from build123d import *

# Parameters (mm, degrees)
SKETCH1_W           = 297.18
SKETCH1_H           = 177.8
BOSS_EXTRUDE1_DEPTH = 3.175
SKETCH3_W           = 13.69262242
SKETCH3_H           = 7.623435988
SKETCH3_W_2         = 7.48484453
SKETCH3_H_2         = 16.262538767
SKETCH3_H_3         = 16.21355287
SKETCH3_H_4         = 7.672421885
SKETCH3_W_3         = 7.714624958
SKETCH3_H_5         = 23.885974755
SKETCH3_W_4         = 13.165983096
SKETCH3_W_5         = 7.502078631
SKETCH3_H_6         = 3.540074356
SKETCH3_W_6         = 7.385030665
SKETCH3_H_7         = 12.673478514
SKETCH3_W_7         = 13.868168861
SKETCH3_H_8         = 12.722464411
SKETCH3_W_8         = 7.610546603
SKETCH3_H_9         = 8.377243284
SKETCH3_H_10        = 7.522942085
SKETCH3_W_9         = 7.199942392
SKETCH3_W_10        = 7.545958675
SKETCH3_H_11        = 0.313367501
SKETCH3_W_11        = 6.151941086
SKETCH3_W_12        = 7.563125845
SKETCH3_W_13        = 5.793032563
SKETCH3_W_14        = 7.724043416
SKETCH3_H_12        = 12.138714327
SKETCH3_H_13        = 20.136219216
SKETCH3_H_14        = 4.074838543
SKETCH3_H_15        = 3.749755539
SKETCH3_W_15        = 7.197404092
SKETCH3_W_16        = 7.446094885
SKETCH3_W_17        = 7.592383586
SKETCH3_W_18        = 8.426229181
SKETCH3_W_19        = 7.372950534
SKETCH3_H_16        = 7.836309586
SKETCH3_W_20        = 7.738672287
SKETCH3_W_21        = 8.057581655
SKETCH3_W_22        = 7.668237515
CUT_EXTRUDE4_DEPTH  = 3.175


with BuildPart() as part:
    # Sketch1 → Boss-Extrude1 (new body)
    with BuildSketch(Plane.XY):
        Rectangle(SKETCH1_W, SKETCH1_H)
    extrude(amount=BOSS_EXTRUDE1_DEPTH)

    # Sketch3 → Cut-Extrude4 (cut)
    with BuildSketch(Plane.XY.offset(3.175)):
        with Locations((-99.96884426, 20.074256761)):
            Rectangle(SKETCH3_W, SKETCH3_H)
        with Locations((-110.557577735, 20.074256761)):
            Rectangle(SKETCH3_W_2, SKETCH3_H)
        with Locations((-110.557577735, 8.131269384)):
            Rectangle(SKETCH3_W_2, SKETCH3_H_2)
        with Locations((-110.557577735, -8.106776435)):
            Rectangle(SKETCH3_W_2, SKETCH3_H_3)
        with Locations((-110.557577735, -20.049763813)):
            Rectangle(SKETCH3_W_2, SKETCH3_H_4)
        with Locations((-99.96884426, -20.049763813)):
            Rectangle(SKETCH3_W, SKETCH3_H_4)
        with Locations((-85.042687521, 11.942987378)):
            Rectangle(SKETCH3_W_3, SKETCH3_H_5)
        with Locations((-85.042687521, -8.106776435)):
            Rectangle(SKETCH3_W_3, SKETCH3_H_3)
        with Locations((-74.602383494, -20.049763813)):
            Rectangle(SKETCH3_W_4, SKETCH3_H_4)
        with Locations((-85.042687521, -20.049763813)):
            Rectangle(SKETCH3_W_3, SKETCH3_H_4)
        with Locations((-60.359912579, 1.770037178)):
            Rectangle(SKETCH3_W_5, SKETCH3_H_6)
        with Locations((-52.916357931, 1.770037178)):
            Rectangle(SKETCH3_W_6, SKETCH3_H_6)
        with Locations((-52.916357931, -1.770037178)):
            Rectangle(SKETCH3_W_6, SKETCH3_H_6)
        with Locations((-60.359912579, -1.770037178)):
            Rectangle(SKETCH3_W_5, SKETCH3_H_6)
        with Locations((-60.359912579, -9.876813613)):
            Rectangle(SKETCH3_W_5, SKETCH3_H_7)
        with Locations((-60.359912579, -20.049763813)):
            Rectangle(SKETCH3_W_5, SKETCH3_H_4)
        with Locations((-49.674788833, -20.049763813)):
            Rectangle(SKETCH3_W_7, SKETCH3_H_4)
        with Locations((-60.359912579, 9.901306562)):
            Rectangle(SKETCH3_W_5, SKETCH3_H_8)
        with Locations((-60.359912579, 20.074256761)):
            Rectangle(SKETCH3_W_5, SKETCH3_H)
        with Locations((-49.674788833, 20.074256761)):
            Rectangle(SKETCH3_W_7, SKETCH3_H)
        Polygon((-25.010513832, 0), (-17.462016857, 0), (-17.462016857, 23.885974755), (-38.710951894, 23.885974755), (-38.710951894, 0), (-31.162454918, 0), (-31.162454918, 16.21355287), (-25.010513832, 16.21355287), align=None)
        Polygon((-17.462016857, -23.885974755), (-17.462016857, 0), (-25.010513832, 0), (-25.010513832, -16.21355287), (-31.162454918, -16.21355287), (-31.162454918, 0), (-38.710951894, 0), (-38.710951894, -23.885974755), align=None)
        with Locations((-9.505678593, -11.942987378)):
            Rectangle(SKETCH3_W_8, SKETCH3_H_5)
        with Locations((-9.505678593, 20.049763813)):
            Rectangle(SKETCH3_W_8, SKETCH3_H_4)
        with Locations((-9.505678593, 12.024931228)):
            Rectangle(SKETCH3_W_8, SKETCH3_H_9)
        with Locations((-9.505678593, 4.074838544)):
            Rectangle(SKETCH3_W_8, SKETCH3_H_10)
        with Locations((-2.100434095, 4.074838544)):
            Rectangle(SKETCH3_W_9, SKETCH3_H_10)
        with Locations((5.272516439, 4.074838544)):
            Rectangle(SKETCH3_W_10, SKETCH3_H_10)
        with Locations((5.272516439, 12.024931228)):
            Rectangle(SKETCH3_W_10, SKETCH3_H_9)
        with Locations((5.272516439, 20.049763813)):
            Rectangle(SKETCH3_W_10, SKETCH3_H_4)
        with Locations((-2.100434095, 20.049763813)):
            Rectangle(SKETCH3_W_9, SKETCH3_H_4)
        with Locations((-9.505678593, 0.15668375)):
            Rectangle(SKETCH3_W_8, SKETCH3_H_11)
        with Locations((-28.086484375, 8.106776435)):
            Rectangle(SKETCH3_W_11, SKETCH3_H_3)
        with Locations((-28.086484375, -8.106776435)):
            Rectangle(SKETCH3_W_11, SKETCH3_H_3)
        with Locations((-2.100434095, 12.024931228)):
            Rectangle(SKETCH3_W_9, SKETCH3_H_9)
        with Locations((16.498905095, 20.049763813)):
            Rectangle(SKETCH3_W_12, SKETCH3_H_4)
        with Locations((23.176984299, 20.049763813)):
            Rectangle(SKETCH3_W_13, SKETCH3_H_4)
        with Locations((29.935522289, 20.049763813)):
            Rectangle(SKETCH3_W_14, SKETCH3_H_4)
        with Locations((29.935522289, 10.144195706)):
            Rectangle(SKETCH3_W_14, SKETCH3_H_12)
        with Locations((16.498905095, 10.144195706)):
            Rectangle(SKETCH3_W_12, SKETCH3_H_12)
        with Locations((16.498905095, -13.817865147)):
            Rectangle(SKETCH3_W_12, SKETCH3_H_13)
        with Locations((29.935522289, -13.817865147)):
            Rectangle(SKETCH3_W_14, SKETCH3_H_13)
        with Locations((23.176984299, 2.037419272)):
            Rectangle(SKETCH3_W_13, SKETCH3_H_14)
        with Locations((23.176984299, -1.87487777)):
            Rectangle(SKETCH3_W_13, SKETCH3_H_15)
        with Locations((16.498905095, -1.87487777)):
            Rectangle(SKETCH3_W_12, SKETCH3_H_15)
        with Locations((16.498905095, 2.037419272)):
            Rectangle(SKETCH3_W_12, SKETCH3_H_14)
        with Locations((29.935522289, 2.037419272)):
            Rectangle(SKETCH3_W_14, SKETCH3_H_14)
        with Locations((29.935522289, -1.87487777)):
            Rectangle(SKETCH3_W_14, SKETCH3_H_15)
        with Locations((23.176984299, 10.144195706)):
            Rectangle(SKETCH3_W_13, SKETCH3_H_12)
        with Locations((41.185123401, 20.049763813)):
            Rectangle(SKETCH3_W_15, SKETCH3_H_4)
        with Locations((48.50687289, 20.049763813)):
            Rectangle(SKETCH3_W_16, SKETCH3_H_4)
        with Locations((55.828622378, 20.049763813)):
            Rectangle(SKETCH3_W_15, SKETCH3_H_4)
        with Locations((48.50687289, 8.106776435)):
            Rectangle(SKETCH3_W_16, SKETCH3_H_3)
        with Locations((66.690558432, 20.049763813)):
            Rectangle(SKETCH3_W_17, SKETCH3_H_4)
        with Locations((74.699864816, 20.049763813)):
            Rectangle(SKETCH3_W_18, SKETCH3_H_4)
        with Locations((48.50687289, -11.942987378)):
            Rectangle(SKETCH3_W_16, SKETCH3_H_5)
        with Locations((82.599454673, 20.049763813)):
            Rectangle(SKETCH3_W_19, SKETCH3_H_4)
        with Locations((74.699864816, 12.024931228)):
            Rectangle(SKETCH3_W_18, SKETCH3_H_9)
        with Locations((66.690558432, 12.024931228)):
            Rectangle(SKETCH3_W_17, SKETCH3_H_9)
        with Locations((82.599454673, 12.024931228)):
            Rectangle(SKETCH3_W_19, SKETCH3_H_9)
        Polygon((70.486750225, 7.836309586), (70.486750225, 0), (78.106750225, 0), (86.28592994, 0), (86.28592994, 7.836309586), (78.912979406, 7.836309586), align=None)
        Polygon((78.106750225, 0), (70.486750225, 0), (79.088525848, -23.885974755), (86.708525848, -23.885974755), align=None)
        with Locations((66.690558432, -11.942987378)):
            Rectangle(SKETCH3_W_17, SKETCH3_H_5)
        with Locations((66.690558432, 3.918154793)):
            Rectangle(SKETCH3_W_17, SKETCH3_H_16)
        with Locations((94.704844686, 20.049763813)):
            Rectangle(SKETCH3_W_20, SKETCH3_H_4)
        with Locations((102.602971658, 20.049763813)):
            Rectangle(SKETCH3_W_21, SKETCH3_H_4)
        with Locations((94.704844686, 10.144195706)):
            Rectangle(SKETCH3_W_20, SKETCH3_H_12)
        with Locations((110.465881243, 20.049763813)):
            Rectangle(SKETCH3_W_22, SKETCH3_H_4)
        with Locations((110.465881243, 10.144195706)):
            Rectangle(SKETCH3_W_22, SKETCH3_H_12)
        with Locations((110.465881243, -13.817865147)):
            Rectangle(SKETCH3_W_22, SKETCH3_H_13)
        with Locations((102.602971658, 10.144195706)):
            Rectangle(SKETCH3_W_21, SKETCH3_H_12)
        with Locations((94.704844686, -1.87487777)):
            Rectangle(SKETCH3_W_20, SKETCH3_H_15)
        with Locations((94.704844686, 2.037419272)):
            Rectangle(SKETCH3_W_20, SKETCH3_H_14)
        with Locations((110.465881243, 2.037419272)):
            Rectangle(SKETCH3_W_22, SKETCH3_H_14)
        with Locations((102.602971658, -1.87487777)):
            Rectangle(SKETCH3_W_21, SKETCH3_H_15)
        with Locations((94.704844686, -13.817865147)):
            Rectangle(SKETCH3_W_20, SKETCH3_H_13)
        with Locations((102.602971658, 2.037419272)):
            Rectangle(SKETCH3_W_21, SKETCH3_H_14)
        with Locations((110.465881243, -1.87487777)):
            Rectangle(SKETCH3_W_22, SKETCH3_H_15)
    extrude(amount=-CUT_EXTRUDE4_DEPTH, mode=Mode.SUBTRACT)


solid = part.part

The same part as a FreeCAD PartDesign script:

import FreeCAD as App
import Part
import Sketcher
Q = App.Units.Quantity

doc = App.newDocument("Part")
body = doc.addObject("PartDesign::Body", "Body")

sketch1 = body.newObject("Sketcher::SketchObject", "Sketch")
sketch1.AttachmentSupport = (doc.getObject("XY_Plane"), [""])
sketch1.MapMode = "FlatFace"
sketch1.addGeometry([
    Part.LineSegment(App.Vector(-149, 89, 0), App.Vector(-149, -89, 0)),
    Part.LineSegment(App.Vector(-149, -89, 0), App.Vector(149, -89, 0)),
    Part.LineSegment(App.Vector(149, -89, 0), App.Vector(149, 89, 0)),
    Part.LineSegment(App.Vector(149, 89, 0), App.Vector(-149, 89, 0)),
], False)
sketch1.addConstraint([
    Sketcher.Constraint("Coincident", 0, 2, 1, 1),
    Sketcher.Constraint("Coincident", 1, 2, 2, 1),
    Sketcher.Constraint("Coincident", 2, 2, 3, 1),
    Sketcher.Constraint("Coincident", 3, 2, 0, 1),
    Sketcher.Constraint("Vertical", 0),
    Sketcher.Constraint("Horizontal", 1),
    Sketcher.Constraint("Vertical", 2),
    Sketcher.Constraint("Horizontal", 3),
    Sketcher.Constraint("Symmetric", 0, 2, 2, 2, -1, 1),
    Sketcher.Constraint("DistanceY", 0, 2, 0, 1, Q("7 in")),
    Sketcher.Constraint("DistanceX", 1, 1, 1, 2, Q("11.7 in")),
])
pad1 = body.newObject("PartDesign::Pad", "Pad")
pad1.Profile = sketch1
pad1.Length = Q("0.125 in")

sketch2 = body.newObject("Sketcher::SketchObject", "Sketch001")
sketch2.AttachmentSupport = (doc.getObject("XY_Plane"), [""])
sketch2.MapMode = "FlatFace"
sketch2.AttachmentOffset = App.Placement(App.Vector(0, 0, 0.125 * 25.4), App.Rotation())
sketch2.addGeometry([
    Part.LineSegment(App.Vector(-93, 16, 0), App.Vector(-93, 24, 0)),
    Part.LineSegment(App.Vector(-93, 24, 0), App.Vector(-114, 24, 0)),
    Part.LineSegment(App.Vector(-114, 24, 0), App.Vector(-114, -24, 0)),
    Part.LineSegment(App.Vector(-114, -24, 0), App.Vector(-93, -24, 0)),
    Part.LineSegment(App.Vector(-93, -24, 0), App.Vector(-93, -16, 0)),
    Part.LineSegment(App.Vector(-93, -16, 0), App.Vector(-107, -16, 0)),
    Part.LineSegment(App.Vector(-107, -16, 0), App.Vector(-107, 16, 0)),
    Part.LineSegment(App.Vector(-107, 16, 0), App.Vector(-93, 16, 0)),
    Part.LineSegment(App.Vector(-89, 24, 0), App.Vector(-89, -24, 0)),
    Part.LineSegment(App.Vector(-89, -24, 0), App.Vector(-68, -24, 0)),
    Part.LineSegment(App.Vector(-68, -24, 0), App.Vector(-68, -16, 0)),
    Part.LineSegment(App.Vector(-68, -16, 0), App.Vector(-81, -16, 0)),
    Part.LineSegment(App.Vector(-81, -16, 0), App.Vector(-81, 24, 0)),
    Part.LineSegment(App.Vector(-81, 24, 0), App.Vector(-89, 24, 0)),
    Part.LineSegment(App.Vector(-64, -24, 0), App.Vector(-43, -24, 0)),
    Part.LineSegment(App.Vector(-43, -24, 0), App.Vector(-43, -16, 0)),
    Part.LineSegment(App.Vector(-43, -16, 0), App.Vector(-57, -16, 0)),
    Part.LineSegment(App.Vector(-57, -16, 0), App.Vector(-57, -4, 0)),
    Part.LineSegment(App.Vector(-57, -4, 0), App.Vector(-49, -4, 0)),
    Part.LineSegment(App.Vector(-49, -4, 0), App.Vector(-49, 4, 0)),
    Part.LineSegment(App.Vector(-49, 4, 0), App.Vector(-57, 4, 0)),
    Part.LineSegment(App.Vector(-57, 4, 0), App.Vector(-57, 16, 0)),
    Part.LineSegment(App.Vector(-57, 16, 0), App.Vector(-43, 16, 0)),
    Part.LineSegment(App.Vector(-43, 16, 0), App.Vector(-43, 24, 0)),
    Part.LineSegment(App.Vector(-43, 24, 0), App.Vector(-64, 24, 0)),
    Part.LineSegment(App.Vector(-64, 24, 0), App.Vector(-64, -24, 0)),
    Part.LineSegment(App.Vector(-17, 24, 0), App.Vector(-39, 24, 0)),
    Part.LineSegment(App.Vector(-39, 24, 0), App.Vector(-39, -24, 0)),
    Part.LineSegment(App.Vector(-39, -24, 0), App.Vector(-17, -24, 0)),
    Part.LineSegment(App.Vector(-17, -24, 0), App.Vector(-17, 24, 0)),
    Part.LineSegment(App.Vector(-13, -24, 0), App.Vector(-6, -24, 0)),
    Part.LineSegment(App.Vector(-6, -24, 0), App.Vector(-6, 0, 0)),
    Part.LineSegment(App.Vector(-6, 0, 0), App.Vector(9, 0, 0)),
    Part.LineSegment(App.Vector(9, 0, 0), App.Vector(9, 24, 0)),
    Part.LineSegment(App.Vector(9, 24, 0), App.Vector(-13, 24, 0)),
    Part.LineSegment(App.Vector(-13, 24, 0), App.Vector(-13, -24, 0)),
    Part.LineSegment(App.Vector(34, 24, 0), App.Vector(13, 24, 0)),
    Part.LineSegment(App.Vector(13, 24, 0), App.Vector(13, -24, 0)),
    Part.LineSegment(App.Vector(13, -24, 0), App.Vector(20, -24, 0)),
    Part.LineSegment(App.Vector(20, -24, 0), App.Vector(20, -4, 0)),
    Part.LineSegment(App.Vector(20, -4, 0), App.Vector(26, -4, 0)),
    Part.LineSegment(App.Vector(26, -4, 0), App.Vector(26, -24, 0)),
    Part.LineSegment(App.Vector(26, -24, 0), App.Vector(34, -24, 0)),
    Part.LineSegment(App.Vector(34, -24, 0), App.Vector(34, 24, 0)),
    Part.LineSegment(App.Vector(38, 24, 0), App.Vector(38, 16, 0)),
    Part.LineSegment(App.Vector(38, 16, 0), App.Vector(45, 16, 0)),
    Part.LineSegment(App.Vector(45, 16, 0), App.Vector(45, -24, 0)),
    Part.LineSegment(App.Vector(45, -24, 0), App.Vector(52, -24, 0)),
    Part.LineSegment(App.Vector(52, -24, 0), App.Vector(52, 16, 0)),
    Part.LineSegment(App.Vector(52, 16, 0), App.Vector(59, 16, 0)),
    Part.LineSegment(App.Vector(59, 16, 0), App.Vector(59, 24, 0)),
    Part.LineSegment(App.Vector(59, 24, 0), App.Vector(38, 24, 0)),
    Part.LineSegment(App.Vector(63, 24, 0), App.Vector(63, -24, 0)),
    Part.LineSegment(App.Vector(63, -24, 0), App.Vector(70, -24, 0)),
    Part.LineSegment(App.Vector(70, -24, 0), App.Vector(70, 0, 0)),
    Part.LineSegment(App.Vector(70, 0, 0), App.Vector(79, -24, 0)),
    Part.LineSegment(App.Vector(79, -24, 0), App.Vector(87, -24, 0)),
    Part.LineSegment(App.Vector(87, -24, 0), App.Vector(78, 0, 0)),
    Part.LineSegment(App.Vector(78, 0, 0), App.Vector(86, 0, 0)),
    Part.LineSegment(App.Vector(86, 0, 0), App.Vector(86, 24, 0)),
    Part.LineSegment(App.Vector(86, 24, 0), App.Vector(63, 24, 0)),
    Part.LineSegment(App.Vector(114, 24, 0), App.Vector(91, 24, 0)),
    Part.LineSegment(App.Vector(91, 24, 0), App.Vector(91, -24, 0)),
    Part.LineSegment(App.Vector(91, -24, 0), App.Vector(99, -24, 0)),
    Part.LineSegment(App.Vector(99, -24, 0), App.Vector(99, -4, 0)),
    Part.LineSegment(App.Vector(99, -4, 0), App.Vector(107, -4, 0)),
    Part.LineSegment(App.Vector(107, -4, 0), App.Vector(107, -24, 0)),
    Part.LineSegment(App.Vector(107, -24, 0), App.Vector(114, -24, 0)),
    Part.LineSegment(App.Vector(114, -24, 0), App.Vector(114, 24, 0)),
], False)
sketch2.addConstraint([
    Sketcher.Constraint("Coincident", 0, 2, 1, 1),
    Sketcher.Constraint("Coincident", 1, 2, 2, 1),
    Sketcher.Constraint("Coincident", 2, 2, 3, 1),
    Sketcher.Constraint("Coincident", 3, 2, 4, 1),
    Sketcher.Constraint("Coincident", 4, 2, 5, 1),
    Sketcher.Constraint("Coincident", 5, 2, 6, 1),
    Sketcher.Constraint("Coincident", 6, 2, 7, 1),
    Sketcher.Constraint("Coincident", 7, 2, 0, 1),
    Sketcher.Constraint("Coincident", 8, 2, 9, 1),
    Sketcher.Constraint("Coincident", 9, 2, 10, 1),
    Sketcher.Constraint("Coincident", 10, 2, 11, 1),
    Sketcher.Constraint("Coincident", 11, 2, 12, 1),
    Sketcher.Constraint("Coincident", 12, 2, 13, 1),
    Sketcher.Constraint("Coincident", 13, 2, 8, 1),
    Sketcher.Constraint("Coincident", 14, 2, 15, 1),
    Sketcher.Constraint("Coincident", 15, 2, 16, 1),
    Sketcher.Constraint("Coincident", 16, 2, 17, 1),
    Sketcher.Constraint("Coincident", 17, 2, 18, 1),
    Sketcher.Constraint("Coincident", 18, 2, 19, 1),
    Sketcher.Constraint("Coincident", 19, 2, 20, 1),
    Sketcher.Constraint("Coincident", 20, 2, 21, 1),
    Sketcher.Constraint("Coincident", 21, 2, 22, 1),
    Sketcher.Constraint("Coincident", 22, 2, 23, 1),
    Sketcher.Constraint("Coincident", 23, 2, 24, 1),
    Sketcher.Constraint("Coincident", 24, 2, 25, 1),
    Sketcher.Constraint("Coincident", 25, 2, 14, 1),
    Sketcher.Constraint("Coincident", 26, 2, 27, 1),
    Sketcher.Constraint("Coincident", 27, 2, 28, 1),
    Sketcher.Constraint("Coincident", 28, 2, 29, 1),
    Sketcher.Constraint("Coincident", 29, 2, 26, 1),
    Sketcher.Constraint("Coincident", 30, 2, 31, 1),
    Sketcher.Constraint("Coincident", 31, 2, 32, 1),
    Sketcher.Constraint("Coincident", 32, 2, 33, 1),
    Sketcher.Constraint("Coincident", 33, 2, 34, 1),
    Sketcher.Constraint("Coincident", 34, 2, 35, 1),
    Sketcher.Constraint("Coincident", 35, 2, 30, 1),
    Sketcher.Constraint("Coincident", 36, 2, 37, 1),
    Sketcher.Constraint("Coincident", 37, 2, 38, 1),
    Sketcher.Constraint("Coincident", 38, 2, 39, 1),
    Sketcher.Constraint("Coincident", 39, 2, 40, 1),
    Sketcher.Constraint("Coincident", 40, 2, 41, 1),
    Sketcher.Constraint("Coincident", 41, 2, 42, 1),
    Sketcher.Constraint("Coincident", 42, 2, 43, 1),
    Sketcher.Constraint("Coincident", 43, 2, 36, 1),
    Sketcher.Constraint("Coincident", 44, 2, 45, 1),
    Sketcher.Constraint("Coincident", 45, 2, 46, 1),
    Sketcher.Constraint("Coincident", 46, 2, 47, 1),
    Sketcher.Constraint("Coincident", 47, 2, 48, 1),
    Sketcher.Constraint("Coincident", 48, 2, 49, 1),
    Sketcher.Constraint("Coincident", 49, 2, 50, 1),
    Sketcher.Constraint("Coincident", 50, 2, 51, 1),
    Sketcher.Constraint("Coincident", 51, 2, 44, 1),
    Sketcher.Constraint("Coincident", 52, 2, 53, 1),
    Sketcher.Constraint("Coincident", 53, 2, 54, 1),
    Sketcher.Constraint("Coincident", 54, 2, 55, 1),
    Sketcher.Constraint("Coincident", 55, 2, 56, 1),
    Sketcher.Constraint("Coincident", 56, 2, 57, 1),
    Sketcher.Constraint("Coincident", 57, 2, 58, 1),
    Sketcher.Constraint("Coincident", 58, 2, 59, 1),
    Sketcher.Constraint("Coincident", 59, 2, 60, 1),
    Sketcher.Constraint("Coincident", 60, 2, 52, 1),
    Sketcher.Constraint("Coincident", 61, 2, 62, 1),
    Sketcher.Constraint("Coincident", 62, 2, 63, 1),
    Sketcher.Constraint("Coincident", 63, 2, 64, 1),
    Sketcher.Constraint("Coincident", 64, 2, 65, 1),
    Sketcher.Constraint("Coincident", 65, 2, 66, 1),
    Sketcher.Constraint("Coincident", 66, 2, 67, 1),
    Sketcher.Constraint("Coincident", 67, 2, 68, 1),
    Sketcher.Constraint("Coincident", 68, 2, 61, 1),
    Sketcher.Constraint("Vertical", 0),
    Sketcher.Constraint("Horizontal", 1),
    Sketcher.Constraint("Vertical", 2),
    Sketcher.Constraint("Horizontal", 3),
    Sketcher.Constraint("Vertical", 4),
    Sketcher.Constraint("Horizontal", 5),
    Sketcher.Constraint("Vertical", 6),
    Sketcher.Constraint("Horizontal", 7),
    Sketcher.Constraint("Vertical", 8),
    Sketcher.Constraint("Horizontal", 9),
    Sketcher.Constraint("Vertical", 10),
    Sketcher.Constraint("Horizontal", 11),
    Sketcher.Constraint("Vertical", 12),
    Sketcher.Constraint("Horizontal", 13),
    Sketcher.Constraint("Horizontal", 14),
    Sketcher.Constraint("Vertical", 15),
    Sketcher.Constraint("Horizontal", 16),
    Sketcher.Constraint("Vertical", 17),
    Sketcher.Constraint("Horizontal", 18),
    Sketcher.Constraint("Vertical", 19),
    Sketcher.Constraint("Horizontal", 20),
    Sketcher.Constraint("Vertical", 21),
    Sketcher.Constraint("Horizontal", 22),
    Sketcher.Constraint("Vertical", 23),
    Sketcher.Constraint("Horizontal", 24),
    Sketcher.Constraint("Vertical", 25),
    Sketcher.Constraint("Horizontal", 26),
    Sketcher.Constraint("Vertical", 27),
    Sketcher.Constraint("Horizontal", 28),
    Sketcher.Constraint("Vertical", 29),
    Sketcher.Constraint("Horizontal", 30),
    Sketcher.Constraint("Vertical", 31),
    Sketcher.Constraint("Horizontal", 32),
    Sketcher.Constraint("Vertical", 33),
    Sketcher.Constraint("Horizontal", 34),
    Sketcher.Constraint("Vertical", 35),
    Sketcher.Constraint("Horizontal", 36),
    Sketcher.Constraint("Vertical", 37),
    Sketcher.Constraint("Horizontal", 38),
    Sketcher.Constraint("Vertical", 39),
    Sketcher.Constraint("Horizontal", 40),
    Sketcher.Constraint("Vertical", 41),
    Sketcher.Constraint("Horizontal", 42),
    Sketcher.Constraint("Vertical", 43),
    Sketcher.Constraint("Vertical", 44),
    Sketcher.Constraint("Horizontal", 45),
    Sketcher.Constraint("Vertical", 46),
    Sketcher.Constraint("Horizontal", 47),
    Sketcher.Constraint("Vertical", 48),
    Sketcher.Constraint("Horizontal", 49),
    Sketcher.Constraint("Vertical", 50),
    Sketcher.Constraint("Horizontal", 51),
    Sketcher.Constraint("Vertical", 52),
    Sketcher.Constraint("Horizontal", 53),
    Sketcher.Constraint("Vertical", 54),
    Sketcher.Constraint("Horizontal", 56),
    Sketcher.Constraint("Horizontal", 58),
    Sketcher.Constraint("Vertical", 59),
    Sketcher.Constraint("Horizontal", 60),
    Sketcher.Constraint("Horizontal", 61),
    Sketcher.Constraint("Vertical", 62),
    Sketcher.Constraint("Horizontal", 63),
    Sketcher.Constraint("Vertical", 64),
    Sketcher.Constraint("Horizontal", 65),
    Sketcher.Constraint("Vertical", 66),
    Sketcher.Constraint("Horizontal", 67),
    Sketcher.Constraint("Vertical", 68),
    Sketcher.Constraint("Symmetric", 1, 2, 67, 2, -1, 1),
    Sketcher.Constraint("Symmetric", 0, 2, 3, 2, -1),
    Sketcher.Constraint("Symmetric", 17, 2, 20, 2, -1),
    Sketcher.Constraint("Symmetric", 14, 2, 23, 2, -1),
    Sketcher.Constraint("PointOnObject", 54, 2, -1),
    Sketcher.Constraint("PointOnObject", 57, 2, -1),
    Sketcher.Constraint("Parallel", 55, 57),
    Sketcher.Constraint("Horizontal", 3, 2, 8, 2),
    Sketcher.Constraint("Horizontal", 5, 2, 10, 2),
    Sketcher.Constraint("Horizontal", 1, 2, 12, 2),
    Sketcher.Constraint("Horizontal", 9, 2, 14, 2),
    Sketcher.Constraint("Horizontal", 11, 2, 15, 2),
    Sketcher.Constraint("Horizontal", 7, 2, 21, 2),
    Sketcher.Constraint("Horizontal", 24, 2, 26, 2),
    Sketcher.Constraint("Horizontal", 25, 2, 27, 2),
    Sketcher.Constraint("Horizontal", 28, 2, 30, 2),
    Sketcher.Constraint("Horizontal", 29, 2, 33, 2),
    Sketcher.Constraint("Horizontal", 34, 2, 36, 2),
    Sketcher.Constraint("Horizontal", 35, 2, 37, 2),
    Sketcher.Constraint("Horizontal", 38, 2, 41, 2),
    Sketcher.Constraint("Horizontal", 42, 2, 46, 2),
    Sketcher.Constraint("Horizontal", 45, 2, 48, 2),
    Sketcher.Constraint("Horizontal", 43, 2, 50, 2),
    Sketcher.Constraint("Horizontal", 47, 2, 52, 2),
    Sketcher.Constraint("Horizontal", 53, 2, 55, 2),
    Sketcher.Constraint("Horizontal", 51, 2, 59, 2),
    Sketcher.Constraint("Horizontal", 60, 2, 61, 2),
    Sketcher.Constraint("Horizontal", 56, 2, 62, 2),
    Sketcher.Constraint("Horizontal", 40, 2, 64, 2),
    Sketcher.Constraint("Equal", 45, 49),
    Sketcher.Constraint("Equal", 15, 44),
    Sketcher.Constraint("DistanceX", 56, 1, 56, 2, Q("0.3 in")),
    Sketcher.Constraint("DistanceX", 1, 2, -1, 1, Q("4.5 in")),
    Sketcher.Constraint("DistanceX", 8, 2, -1, 1, Q("3.5 in")),
    Sketcher.Constraint("DistanceX", 32, 1, 32, 2, 14.745901),
    Sketcher.Constraint("DistanceX", 36, 2, 36, 1, 21.080202),
    Sketcher.Constraint("Distance", 55, 25.387602),
    Sketcher.Constraint("DistanceX", 9, 1, 9, 2, 20.880608),
    Sketcher.Constraint("DistanceX", 16, 2, 16, 1, 13.868169),
    Sketcher.Constraint("DistanceX", 18, 1, 18, 2, 7.385031),
    Sketcher.Constraint("DistanceX", 58, 1, 58, 2, 8.17918),
    Sketcher.Constraint("DistanceX", 61, 2, 61, 1, 23.464491),
    Sketcher.Constraint("DistanceX", 65, 1, 65, 2, 8.057582),
    Sketcher.Constraint("DistanceY", 2, 2, 2, 1, 47.77195),
    Sketcher.Constraint("DistanceY", 4, 1, 4, 2, 7.672422),
    Sketcher.Constraint("DistanceY", 6, 1, 6, 2, 32.476092),
    Sketcher.Constraint("DistanceY", 17, 1, 17, 2, 12.673479),
    Sketcher.Constraint("DistanceY", 39, 1, 39, 2, 20.136219),
    Sketcher.Constraint("DistanceX", -1, 1, 40, 2, 26.073501),
    Sketcher.Constraint("DistanceX", 1, 2, 1, 1, 21.177467),
    Sketcher.Constraint("DistanceX", 5, 2, 5, 1, 13.692622),
    Sketcher.Constraint("DistanceX", 11, 2, 11, 1, 13.165983),
    Sketcher.Constraint("DistanceX", 14, 1, 14, 2, 21.370247),
    Sketcher.Constraint("DistanceX", 26, 2, 26, 1, 21.248935),
    Sketcher.Constraint("DistanceX", 30, 1, 30, 2, 7.610547),
    Sketcher.Constraint("DistanceX", 38, 1, 38, 2, 7.563126),
    Sketcher.Constraint("DistanceX", 40, 1, 40, 2, 5.793033),
    Sketcher.Constraint("DistanceX", 45, 1, 45, 2, 7.197404),
    Sketcher.Constraint("DistanceX", 47, 1, 47, 2, 7.446095),
    Sketcher.Constraint("DistanceX", 53, 1, 53, 2, 7.592384),
    Sketcher.Constraint("DistanceX", 63, 1, 63, 2, 7.738672),
    Sketcher.Constraint("DistanceY", 31, 1, 31, 2, 24.199342),
    Sketcher.Constraint("DistanceX", 24, 2, -1, 1, 64.110952),
    Sketcher.Constraint("DistanceX", 26, 2, -1, 1, 38.710952),
    Sketcher.Constraint("DistanceX", 34, 2, -1, 1, 13.310952),
    Sketcher.Constraint("DistanceX", -1, 1, 44, 2, 37.586421),
    Sketcher.Constraint("DistanceX", -1, 1, 53, 2, 70.48675),
])
pocket1 = body.newObject("PartDesign::Pocket", "Pocket")
pocket1.Profile = sketch2
pocket1.Length = Q("0.125 in")

doc.recompute()
